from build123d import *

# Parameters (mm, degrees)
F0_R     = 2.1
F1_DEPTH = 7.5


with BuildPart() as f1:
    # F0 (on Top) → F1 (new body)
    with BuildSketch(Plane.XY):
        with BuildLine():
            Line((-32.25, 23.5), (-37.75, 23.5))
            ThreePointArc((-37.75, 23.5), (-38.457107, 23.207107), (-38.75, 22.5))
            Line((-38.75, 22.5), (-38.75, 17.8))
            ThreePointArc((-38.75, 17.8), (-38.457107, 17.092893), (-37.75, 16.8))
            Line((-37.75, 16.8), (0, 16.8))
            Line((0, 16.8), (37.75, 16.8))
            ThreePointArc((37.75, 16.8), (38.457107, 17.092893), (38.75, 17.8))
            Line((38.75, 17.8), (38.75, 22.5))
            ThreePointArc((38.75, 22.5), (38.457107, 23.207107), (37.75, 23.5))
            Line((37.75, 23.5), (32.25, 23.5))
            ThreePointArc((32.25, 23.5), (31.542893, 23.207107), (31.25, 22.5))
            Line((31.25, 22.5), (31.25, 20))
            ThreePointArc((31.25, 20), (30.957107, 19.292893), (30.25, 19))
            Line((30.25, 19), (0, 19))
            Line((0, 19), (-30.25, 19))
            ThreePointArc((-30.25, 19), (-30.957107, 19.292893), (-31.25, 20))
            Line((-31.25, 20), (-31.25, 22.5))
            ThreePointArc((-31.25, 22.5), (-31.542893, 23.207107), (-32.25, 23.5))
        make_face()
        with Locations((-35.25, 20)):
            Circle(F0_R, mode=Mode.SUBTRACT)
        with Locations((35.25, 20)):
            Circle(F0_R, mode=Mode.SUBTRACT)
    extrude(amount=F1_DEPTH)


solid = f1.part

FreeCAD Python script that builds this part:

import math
import FreeCAD as App
import Part
import Sketcher

V = App.Vector
Q = App.Units.Quantity

doc = App.newDocument("Part")
body = doc.addObject("PartDesign::Body", "Body")

# Sketch on XY plane
sketch1 = doc.addObject("Sketcher::SketchObject", "Sketch")
body.addObject(sketch1)
sketch1.AttachmentSupport = (doc.XY_Plane, [""])
sketch1.MapMode = "FlatFace"
sketch1.addGeometry([
    Part.LineSegment(V(-32.2, 23.5, 0), V(-37.8, 23.5, 0)),  # 0
    Part.ArcOfCircle(Part.Circle(V(-37.8, 22.5, 0), V(0, 0, 1), 1), math.radians(90), math.radians(180)),  # 1
    Part.LineSegment(V(-38.8, 22.5, 0), V(-38.8, 17.8, 0)),  # 2
    Part.ArcOfCircle(Part.Circle(V(-37.8, 17.8, 0), V(0, 0, 1), 1), math.radians(180), math.radians(270)),  # 3
    Part.LineSegment(V(-37.8, 16.8, 0), V(37.8, 16.8, 0)),  # 4
    Part.ArcOfCircle(Part.Circle(V(37.8, 17.8, 0), V(0, 0, 1), 1), math.radians(-90), math.radians(0)),  # 5
    Part.LineSegment(V(38.8, 17.8, 0), V(38.8, 22.5, 0)),  # 6
    Part.ArcOfCircle(Part.Circle(V(37.8, 22.5, 0), V(0, 0, 1), 1), math.radians(0), math.radians(90)),  # 7
    Part.LineSegment(V(37.8, 23.5, 0), V(32.2, 23.5, 0)),  # 8
    Part.ArcOfCircle(Part.Circle(V(32.2, 22.5, 0), V(0, 0, 1), 1), math.radians(90), math.radians(180)),  # 9
    Part.LineSegment(V(31.2, 22.5, 0), V(31.2, 20, 0)),  # 10
    Part.ArcOfCircle(Part.Circle(V(30.3, 20, 0), V(0, 0, 1), 1), math.radians(-90), math.radians(0)),  # 11
    Part.LineSegment(V(30.2, 19, 0), V(-30.2, 19, 0)),  # 12
    Part.ArcOfCircle(Part.Circle(V(-30.3, 20, 0), V(0, 0, 1), 1), math.radians(180), math.radians(270)),  # 13
    Part.LineSegment(V(-31.2, 20, 0), V(-31.2, 22.5, 0)),  # 14
    Part.ArcOfCircle(Part.Circle(V(-32.2, 22.5, 0), V(0, 0, 1), 1), math.radians(0), math.radians(90)),  # 15
    Part.Circle(V(-35.2, 20, 0), V(0, 0, 1), 2.1),  # 16
    Part.Circle(V(35.2, 20, 0), V(0, 0, 1), 2.1),  # 17
], False)
sketch1.addConstraint([
    Sketcher.Constraint("Tangent", 0, 2, 1, 1),
    Sketcher.Constraint("Tangent", 1, 2, 2, 1),
    Sketcher.Constraint("Tangent", 2, 2, 3, 1),
    Sketcher.Constraint("Tangent", 3, 2, 4, 1),
    Sketcher.Constraint("Tangent", 4, 2, 5, 1),
    Sketcher.Constraint("Tangent", 5, 2, 6, 1),
    Sketcher.Constraint("Tangent", 6, 2, 7, 1),
    Sketcher.Constraint("Tangent", 7, 2, 8, 1),
    Sketcher.Constraint("Tangent", 8, 2, 9, 1),
    Sketcher.Constraint("Tangent", 9, 2, 10, 1),
    Sketcher.Constraint("Tangent", 10, 2, 11, 2),
    Sketcher.Constraint("Tangent", 11, 1, 12, 1),
    Sketcher.Constraint("Tangent", 12, 2, 13, 2),
    Sketcher.Constraint("Tangent", 13, 1, 14, 1),
    Sketcher.Constraint("Tangent", 14, 2, 15, 1),
    Sketcher.Constraint("Tangent", 15, 2, 0, 1),
    Sketcher.Constraint("Horizontal", 0),
    Sketcher.Constraint("Vertical", 2),
    Sketcher.Constraint("Horizontal", 4),
    Sketcher.Constraint("Vertical", 6),
    Sketcher.Constraint("Horizontal", 8),
    Sketcher.Constraint("Vertical", 10),
    Sketcher.Constraint("Horizontal", 12),
    Sketcher.Constraint("Vertical", 14),
    Sketcher.Constraint("Equal", 1, 3),
    Sketcher.Constraint("Equal", 3, 5),
    Sketcher.Constraint("Equal", 5, 7),
    Sketcher.Constraint("Equal", 7, 9),
    Sketcher.Constraint("Equal", 9, 11),
    Sketcher.Constraint("Equal", 11, 13),
    Sketcher.Constraint("Equal", 13, 15),
    Sketcher.Constraint("Equal", 16, 17),
    Sketcher.Constraint("Symmetric", 1, 3, 7, 3, -2),
    Sketcher.Constraint("Symmetric", 16, 3, 17, 3, -2),
    Sketcher.Constraint("Horizontal", 13, 3, 16, 3),
    Sketcher.Constraint("Equal", 0, 8),
    Sketcher.Constraint("Radius", 1, Q("0.999999 mm")),
    Sketcher.Constraint("Diameter", 16, Q("4.2 mm")),
    Sketcher.Constraint("DistanceX", 0, 2, 0, 1, Q("5.5 mm")),
    Sketcher.Constraint("DistanceX", 4, 1, 4, 2, Q("75.5 mm")),
    Sketcher.Constraint("DistanceY", 2, 2, 2, 1, Q("4.7 mm")),
    Sketcher.Constraint("DistanceY", 10, 2, 10, 1, Q("2.5 mm")),
    Sketcher.Constraint("DistanceY", -1, 1, 11, 3, Q("19.999999 mm")),
    Sketcher.Constraint("DistanceX", 16, 3, 15, 3, Q("3.000001 mm")),
])
pad1 = doc.addObject("PartDesign::Pad", "Pad")
body.addObject(pad1)
pad1.Profile = sketch1
pad1.Length = 7.5

doc.recompute()
